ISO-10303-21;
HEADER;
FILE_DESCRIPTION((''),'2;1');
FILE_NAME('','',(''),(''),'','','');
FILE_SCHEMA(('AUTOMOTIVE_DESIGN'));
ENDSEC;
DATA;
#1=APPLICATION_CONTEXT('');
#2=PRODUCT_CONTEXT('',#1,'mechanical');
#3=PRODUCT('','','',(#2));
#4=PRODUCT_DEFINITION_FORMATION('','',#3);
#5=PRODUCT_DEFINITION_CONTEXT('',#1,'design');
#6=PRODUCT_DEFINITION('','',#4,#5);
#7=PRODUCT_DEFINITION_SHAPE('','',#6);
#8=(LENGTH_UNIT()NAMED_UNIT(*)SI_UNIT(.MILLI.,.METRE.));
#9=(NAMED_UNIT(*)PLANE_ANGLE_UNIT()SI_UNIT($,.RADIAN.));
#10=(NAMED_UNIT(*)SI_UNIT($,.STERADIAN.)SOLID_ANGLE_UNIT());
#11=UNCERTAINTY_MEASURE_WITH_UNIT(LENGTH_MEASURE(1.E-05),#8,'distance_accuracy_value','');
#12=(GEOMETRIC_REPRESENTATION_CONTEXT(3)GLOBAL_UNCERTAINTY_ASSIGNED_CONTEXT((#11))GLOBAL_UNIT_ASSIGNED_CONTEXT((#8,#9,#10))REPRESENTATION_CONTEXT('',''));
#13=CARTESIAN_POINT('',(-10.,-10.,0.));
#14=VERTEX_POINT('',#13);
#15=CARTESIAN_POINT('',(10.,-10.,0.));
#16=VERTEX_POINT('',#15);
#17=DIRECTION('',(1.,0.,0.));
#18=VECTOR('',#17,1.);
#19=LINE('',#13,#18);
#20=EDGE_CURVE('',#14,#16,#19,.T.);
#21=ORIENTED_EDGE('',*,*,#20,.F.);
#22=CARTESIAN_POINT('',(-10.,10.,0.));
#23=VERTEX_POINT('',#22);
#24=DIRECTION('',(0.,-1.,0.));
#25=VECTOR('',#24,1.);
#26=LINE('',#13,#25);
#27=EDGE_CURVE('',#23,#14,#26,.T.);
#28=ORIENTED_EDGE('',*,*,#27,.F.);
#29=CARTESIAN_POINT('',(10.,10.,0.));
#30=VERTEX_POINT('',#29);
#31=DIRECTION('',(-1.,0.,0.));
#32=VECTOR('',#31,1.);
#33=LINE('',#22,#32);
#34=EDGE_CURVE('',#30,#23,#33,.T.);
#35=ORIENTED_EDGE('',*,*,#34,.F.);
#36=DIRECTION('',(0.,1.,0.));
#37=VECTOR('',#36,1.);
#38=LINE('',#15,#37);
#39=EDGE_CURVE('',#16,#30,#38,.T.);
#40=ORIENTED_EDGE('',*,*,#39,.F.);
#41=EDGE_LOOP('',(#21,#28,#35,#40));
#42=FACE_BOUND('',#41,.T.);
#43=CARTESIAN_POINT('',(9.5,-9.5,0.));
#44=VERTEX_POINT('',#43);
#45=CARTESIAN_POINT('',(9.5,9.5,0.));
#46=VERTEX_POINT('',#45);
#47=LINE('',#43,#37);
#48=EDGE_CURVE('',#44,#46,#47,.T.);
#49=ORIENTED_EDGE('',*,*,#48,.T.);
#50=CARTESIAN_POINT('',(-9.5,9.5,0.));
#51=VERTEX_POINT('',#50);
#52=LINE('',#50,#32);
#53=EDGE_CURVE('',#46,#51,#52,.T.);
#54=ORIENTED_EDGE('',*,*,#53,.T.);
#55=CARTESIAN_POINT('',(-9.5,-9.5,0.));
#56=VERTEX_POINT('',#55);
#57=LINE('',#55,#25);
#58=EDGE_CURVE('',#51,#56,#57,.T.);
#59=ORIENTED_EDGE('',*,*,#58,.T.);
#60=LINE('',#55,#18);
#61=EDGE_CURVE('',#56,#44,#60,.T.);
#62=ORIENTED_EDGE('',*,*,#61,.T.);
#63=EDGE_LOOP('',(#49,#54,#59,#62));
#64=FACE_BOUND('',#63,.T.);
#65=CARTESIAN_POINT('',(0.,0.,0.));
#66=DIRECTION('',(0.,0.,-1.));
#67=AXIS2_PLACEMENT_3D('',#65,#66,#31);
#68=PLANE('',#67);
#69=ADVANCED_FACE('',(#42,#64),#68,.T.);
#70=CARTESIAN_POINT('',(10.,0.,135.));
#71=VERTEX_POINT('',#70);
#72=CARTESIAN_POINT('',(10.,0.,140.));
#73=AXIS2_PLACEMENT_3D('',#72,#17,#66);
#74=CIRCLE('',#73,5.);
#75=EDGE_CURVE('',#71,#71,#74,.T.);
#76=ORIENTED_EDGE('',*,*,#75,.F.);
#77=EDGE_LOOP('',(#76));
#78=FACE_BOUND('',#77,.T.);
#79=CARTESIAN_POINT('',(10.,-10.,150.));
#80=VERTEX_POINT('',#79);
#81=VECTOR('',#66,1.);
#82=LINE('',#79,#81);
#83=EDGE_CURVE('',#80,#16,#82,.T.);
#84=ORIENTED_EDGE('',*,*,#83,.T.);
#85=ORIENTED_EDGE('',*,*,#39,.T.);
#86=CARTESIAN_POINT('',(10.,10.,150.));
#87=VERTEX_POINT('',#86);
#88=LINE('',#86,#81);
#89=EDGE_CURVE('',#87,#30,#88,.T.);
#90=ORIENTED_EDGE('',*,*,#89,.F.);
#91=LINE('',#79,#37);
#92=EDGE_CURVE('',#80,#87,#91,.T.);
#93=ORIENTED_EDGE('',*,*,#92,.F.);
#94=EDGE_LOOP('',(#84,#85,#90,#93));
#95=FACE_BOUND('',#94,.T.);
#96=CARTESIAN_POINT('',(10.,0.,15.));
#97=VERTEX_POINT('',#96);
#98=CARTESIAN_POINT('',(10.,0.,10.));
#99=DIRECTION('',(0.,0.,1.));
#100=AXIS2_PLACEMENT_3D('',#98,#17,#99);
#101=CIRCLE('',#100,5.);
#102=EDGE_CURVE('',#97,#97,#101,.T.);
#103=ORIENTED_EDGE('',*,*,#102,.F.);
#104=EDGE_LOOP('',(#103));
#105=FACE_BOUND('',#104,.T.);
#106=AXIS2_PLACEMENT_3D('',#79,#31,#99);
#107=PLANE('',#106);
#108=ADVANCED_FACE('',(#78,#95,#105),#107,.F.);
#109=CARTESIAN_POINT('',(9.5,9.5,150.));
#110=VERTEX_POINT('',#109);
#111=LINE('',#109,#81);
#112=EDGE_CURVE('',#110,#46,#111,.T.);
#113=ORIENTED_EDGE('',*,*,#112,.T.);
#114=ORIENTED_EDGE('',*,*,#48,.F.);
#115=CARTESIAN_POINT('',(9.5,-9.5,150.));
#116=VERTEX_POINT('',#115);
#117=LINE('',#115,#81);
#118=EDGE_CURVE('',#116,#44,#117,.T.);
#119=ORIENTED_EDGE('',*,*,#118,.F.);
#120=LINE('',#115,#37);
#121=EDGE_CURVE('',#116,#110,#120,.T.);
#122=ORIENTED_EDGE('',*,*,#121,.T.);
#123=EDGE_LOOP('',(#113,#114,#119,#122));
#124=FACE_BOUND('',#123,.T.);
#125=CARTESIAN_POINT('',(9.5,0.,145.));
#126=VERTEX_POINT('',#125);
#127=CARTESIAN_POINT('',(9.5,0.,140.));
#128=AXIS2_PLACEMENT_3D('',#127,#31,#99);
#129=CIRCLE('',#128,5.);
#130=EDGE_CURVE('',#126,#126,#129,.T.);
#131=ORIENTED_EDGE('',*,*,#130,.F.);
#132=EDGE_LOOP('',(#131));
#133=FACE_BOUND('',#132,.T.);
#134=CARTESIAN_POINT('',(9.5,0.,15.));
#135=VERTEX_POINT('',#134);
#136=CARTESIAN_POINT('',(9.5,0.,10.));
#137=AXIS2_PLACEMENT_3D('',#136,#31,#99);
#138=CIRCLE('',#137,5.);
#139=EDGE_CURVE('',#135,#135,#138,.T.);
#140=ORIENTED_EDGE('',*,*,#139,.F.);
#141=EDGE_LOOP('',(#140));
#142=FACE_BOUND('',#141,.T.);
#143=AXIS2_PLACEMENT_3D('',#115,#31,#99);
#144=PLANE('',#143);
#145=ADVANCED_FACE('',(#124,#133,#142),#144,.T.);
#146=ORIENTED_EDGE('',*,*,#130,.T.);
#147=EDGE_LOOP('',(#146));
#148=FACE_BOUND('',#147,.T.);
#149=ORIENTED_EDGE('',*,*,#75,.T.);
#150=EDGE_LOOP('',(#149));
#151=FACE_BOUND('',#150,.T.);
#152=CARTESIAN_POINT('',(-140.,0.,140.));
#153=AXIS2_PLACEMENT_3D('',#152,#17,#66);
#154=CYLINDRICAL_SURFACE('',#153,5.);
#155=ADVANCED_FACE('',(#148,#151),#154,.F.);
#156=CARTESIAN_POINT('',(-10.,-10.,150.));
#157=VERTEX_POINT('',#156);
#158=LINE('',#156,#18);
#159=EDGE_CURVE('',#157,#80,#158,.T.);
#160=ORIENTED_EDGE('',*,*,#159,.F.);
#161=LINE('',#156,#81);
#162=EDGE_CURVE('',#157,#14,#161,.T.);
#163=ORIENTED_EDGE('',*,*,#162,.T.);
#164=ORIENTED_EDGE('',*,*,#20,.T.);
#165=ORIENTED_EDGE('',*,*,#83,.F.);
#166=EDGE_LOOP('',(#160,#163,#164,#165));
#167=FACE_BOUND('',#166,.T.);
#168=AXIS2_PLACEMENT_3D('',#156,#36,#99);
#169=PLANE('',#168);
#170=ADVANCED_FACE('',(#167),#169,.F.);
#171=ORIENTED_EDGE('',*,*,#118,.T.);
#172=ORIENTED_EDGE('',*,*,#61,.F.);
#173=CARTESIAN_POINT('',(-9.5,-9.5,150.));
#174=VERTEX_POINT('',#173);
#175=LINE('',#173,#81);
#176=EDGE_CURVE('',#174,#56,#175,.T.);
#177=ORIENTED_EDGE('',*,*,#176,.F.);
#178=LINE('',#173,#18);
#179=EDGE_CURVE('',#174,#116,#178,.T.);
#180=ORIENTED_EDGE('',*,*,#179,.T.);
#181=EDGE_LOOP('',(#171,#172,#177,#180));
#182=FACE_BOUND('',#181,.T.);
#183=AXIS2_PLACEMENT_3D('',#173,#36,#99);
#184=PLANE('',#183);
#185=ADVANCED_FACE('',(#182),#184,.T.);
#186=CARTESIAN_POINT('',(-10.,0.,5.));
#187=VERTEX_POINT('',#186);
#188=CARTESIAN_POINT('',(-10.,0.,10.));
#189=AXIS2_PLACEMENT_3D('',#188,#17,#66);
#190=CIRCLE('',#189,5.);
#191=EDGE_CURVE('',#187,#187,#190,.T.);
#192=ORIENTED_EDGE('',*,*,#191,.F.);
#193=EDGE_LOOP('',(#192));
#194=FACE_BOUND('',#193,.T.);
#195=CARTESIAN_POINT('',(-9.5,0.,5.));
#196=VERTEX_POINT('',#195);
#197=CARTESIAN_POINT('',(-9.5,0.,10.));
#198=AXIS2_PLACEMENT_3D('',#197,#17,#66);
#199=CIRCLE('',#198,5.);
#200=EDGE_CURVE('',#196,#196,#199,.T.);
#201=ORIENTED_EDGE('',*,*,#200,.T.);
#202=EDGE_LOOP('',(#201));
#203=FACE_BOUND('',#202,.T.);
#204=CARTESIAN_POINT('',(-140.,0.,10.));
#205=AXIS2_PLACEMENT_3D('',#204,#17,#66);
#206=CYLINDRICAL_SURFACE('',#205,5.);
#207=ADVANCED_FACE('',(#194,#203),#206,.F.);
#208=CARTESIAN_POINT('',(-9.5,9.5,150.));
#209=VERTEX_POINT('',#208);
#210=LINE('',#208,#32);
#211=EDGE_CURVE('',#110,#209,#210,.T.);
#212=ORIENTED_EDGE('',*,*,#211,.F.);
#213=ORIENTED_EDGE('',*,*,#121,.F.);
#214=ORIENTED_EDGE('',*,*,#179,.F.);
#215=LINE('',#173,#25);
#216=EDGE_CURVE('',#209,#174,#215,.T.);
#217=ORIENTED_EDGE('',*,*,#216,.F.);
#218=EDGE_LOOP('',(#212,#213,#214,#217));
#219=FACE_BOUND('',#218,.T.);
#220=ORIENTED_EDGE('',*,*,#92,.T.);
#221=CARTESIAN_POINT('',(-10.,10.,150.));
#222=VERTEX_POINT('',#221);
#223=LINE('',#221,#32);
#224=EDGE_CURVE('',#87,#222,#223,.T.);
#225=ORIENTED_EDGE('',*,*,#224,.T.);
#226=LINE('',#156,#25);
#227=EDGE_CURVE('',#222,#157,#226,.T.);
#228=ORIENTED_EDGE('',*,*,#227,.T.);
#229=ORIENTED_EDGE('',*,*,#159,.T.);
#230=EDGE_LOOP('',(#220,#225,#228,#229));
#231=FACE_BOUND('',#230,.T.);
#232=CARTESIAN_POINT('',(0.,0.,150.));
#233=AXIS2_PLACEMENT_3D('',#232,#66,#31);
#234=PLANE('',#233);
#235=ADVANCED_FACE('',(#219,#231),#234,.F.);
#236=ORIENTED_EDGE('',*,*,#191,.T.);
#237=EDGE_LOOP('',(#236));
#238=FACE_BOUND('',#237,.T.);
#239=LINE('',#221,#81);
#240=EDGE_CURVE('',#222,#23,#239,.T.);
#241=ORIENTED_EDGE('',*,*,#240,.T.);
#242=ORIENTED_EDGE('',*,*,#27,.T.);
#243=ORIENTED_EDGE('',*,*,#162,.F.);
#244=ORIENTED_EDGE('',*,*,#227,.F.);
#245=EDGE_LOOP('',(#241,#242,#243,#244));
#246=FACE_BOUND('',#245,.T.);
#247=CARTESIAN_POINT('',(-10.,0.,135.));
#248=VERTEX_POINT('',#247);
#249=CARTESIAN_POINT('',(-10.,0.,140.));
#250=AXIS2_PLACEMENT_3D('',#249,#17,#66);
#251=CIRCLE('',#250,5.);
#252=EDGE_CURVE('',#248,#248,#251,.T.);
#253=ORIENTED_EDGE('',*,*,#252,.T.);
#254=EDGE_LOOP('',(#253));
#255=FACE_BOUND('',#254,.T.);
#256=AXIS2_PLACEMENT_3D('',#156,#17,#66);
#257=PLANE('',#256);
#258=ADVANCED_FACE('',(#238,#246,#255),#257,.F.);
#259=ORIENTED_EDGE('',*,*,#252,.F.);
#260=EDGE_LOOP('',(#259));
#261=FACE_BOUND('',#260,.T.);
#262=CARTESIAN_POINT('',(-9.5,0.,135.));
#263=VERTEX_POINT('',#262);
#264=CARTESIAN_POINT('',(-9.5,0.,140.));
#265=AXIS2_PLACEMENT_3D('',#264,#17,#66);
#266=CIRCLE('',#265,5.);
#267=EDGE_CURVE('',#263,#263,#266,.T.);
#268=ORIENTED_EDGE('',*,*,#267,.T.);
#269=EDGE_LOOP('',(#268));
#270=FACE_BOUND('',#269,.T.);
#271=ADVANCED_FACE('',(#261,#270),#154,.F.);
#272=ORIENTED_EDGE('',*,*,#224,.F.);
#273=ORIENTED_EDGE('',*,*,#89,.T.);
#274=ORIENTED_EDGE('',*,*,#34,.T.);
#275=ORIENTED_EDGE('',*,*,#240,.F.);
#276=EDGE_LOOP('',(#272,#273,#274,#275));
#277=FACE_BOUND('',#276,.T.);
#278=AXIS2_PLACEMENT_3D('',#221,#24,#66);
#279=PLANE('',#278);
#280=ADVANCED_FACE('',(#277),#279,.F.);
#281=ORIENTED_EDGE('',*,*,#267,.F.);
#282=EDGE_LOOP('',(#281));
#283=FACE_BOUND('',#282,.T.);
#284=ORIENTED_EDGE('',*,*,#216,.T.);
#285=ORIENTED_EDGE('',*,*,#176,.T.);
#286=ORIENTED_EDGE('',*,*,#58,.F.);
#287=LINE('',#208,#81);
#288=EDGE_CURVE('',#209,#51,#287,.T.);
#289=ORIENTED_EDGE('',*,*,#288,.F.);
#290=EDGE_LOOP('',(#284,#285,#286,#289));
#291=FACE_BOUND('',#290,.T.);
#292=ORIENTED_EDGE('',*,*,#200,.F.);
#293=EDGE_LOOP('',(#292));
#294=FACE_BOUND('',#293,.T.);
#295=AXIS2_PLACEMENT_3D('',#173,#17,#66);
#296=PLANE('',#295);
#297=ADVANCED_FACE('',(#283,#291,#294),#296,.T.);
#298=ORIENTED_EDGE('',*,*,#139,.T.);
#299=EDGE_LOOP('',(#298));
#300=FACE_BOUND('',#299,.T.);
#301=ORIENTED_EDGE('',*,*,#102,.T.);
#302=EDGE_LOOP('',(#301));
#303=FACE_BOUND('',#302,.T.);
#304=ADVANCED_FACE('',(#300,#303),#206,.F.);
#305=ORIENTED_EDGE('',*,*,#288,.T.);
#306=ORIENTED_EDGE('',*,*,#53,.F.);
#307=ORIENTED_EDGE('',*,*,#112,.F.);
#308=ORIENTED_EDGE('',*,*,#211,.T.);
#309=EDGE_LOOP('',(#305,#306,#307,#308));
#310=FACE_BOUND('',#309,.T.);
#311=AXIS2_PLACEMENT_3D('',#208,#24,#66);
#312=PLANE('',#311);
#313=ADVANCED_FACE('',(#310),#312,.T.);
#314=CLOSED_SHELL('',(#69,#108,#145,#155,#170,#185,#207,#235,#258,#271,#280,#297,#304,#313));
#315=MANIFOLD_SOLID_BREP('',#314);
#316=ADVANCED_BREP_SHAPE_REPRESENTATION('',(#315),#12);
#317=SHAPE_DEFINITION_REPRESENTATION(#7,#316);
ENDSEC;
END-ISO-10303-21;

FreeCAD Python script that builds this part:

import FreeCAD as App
import Part
import Sketcher

V = App.Vector
Q = App.Units.Quantity

doc = App.newDocument("Part")
body = doc.addObject("PartDesign::Body", "Body")

sketch1 = body.newObject("Sketcher::SketchObject", "Sketch")
sketch1.AttachmentSupport = (doc.getObject("XY_Plane"), [""])
sketch1.MapMode = "FlatFace"
sketch1.addGeometry(Part.LineSegment(V(-10, 10, 0), V(-10, -10, 0)), False)
sketch1.addGeometry(Part.LineSegment(V(-10, -10, 0), V(10, -10, 0)), False)
sketch1.addGeometry(Part.LineSegment(V(10, -10, 0), V(10, 10, 0)), False)
sketch1.addGeometry(Part.LineSegment(V(10, 10, 0), V(-10, 10, 0)), False)
sketch1.addGeometry(Part.LineSegment(V(10, -10, 0), V(-10, -10, 0)), False)
sketch1.addGeometry(Part.LineSegment(V(-10, -10, 0), V(-10, 10, 0)), False)
sketch1.addGeometry(Part.LineSegment(V(-10, 10, 0), V(10, 10, 0)), False)
sketch1.addGeometry(Part.LineSegment(V(10, 10, 0), V(10, -10, 0)), False)
sketch1.addConstraint(Sketcher.Constraint("Coincident", 0, 2, 1, 1))
sketch1.addConstraint(Sketcher.Constraint("Coincident", 1, 2, 2, 1))
sketch1.addConstraint(Sketcher.Constraint("Coincident", 2, 2, 3, 1))
sketch1.addConstraint(Sketcher.Constraint("Coincident", 3, 2, 0, 1))
sketch1.addConstraint(Sketcher.Constraint("Coincident", 4, 2, 5, 1))
sketch1.addConstraint(Sketcher.Constraint("Coincident", 5, 2, 6, 1))
sketch1.addConstraint(Sketcher.Constraint("Coincident", 6, 2, 7, 1))
sketch1.addConstraint(Sketcher.Constraint("Coincident", 7, 2, 4, 1))
sketch1.addConstraint(Sketcher.Constraint("Vertical", 0))
sketch1.addConstraint(Sketcher.Constraint("Horizontal", 1))
sketch1.addConstraint(Sketcher.Constraint("Vertical", 2))
sketch1.addConstraint(Sketcher.Constraint("Horizontal", 3))
sketch1.addConstraint(Sketcher.Constraint("Horizontal", 4))
sketch1.addConstraint(Sketcher.Constraint("Vertical", 5))
sketch1.addConstraint(Sketcher.Constraint("Horizontal", 6))
sketch1.addConstraint(Sketcher.Constraint("Vertical", 7))
sketch1.addConstraint(Sketcher.Constraint("Symmetric", 0, 2, 2, 2, -1, 1))
sketch1.addConstraint(Sketcher.Constraint("Symmetric", 4, 2, 6, 2, -1, 1))
sketch1.addConstraint(Sketcher.Constraint("Equal", 3, 0))
sketch1.addConstraint(Sketcher.Constraint("Equal", 6, 5))
sketch1.addConstraint(Sketcher.Constraint("DistanceX", 1, 1, 1, 2, Q("20 mm")))
sketch1.addConstraint(Sketcher.Constraint("DistanceX", 4, 2, 4, 1, Q("19 mm")))
pad1 = body.newObject("PartDesign::Pad", "Pad")
pad1.Profile = sketch1
pad1.Length = 150

sketch2 = body.newObject("Sketcher::SketchObject", "Sketch001")
sketch2.AttachmentSupport = (doc.getObject("YZ_Plane"), [""])
sketch2.MapMode = "FlatFace"
sketch2.AttachmentOffset = App.Placement(V(0, 0, 10), App.Rotation())
sketch2.addGeometry(Part.Circle(V(0, 140, 0), V(0, 0, 1), 5), False)
sketch2.addGeometry(Part.Circle(V(0, 10, 0), V(0, 0, 1), 5), False)
sketch2.addConstraint(Sketcher.Constraint("Equal", 0, 1))
sketch2.addConstraint(Sketcher.Constraint("PointOnObject", 0, 3, -2))
sketch2.addConstraint(Sketcher.Constraint("PointOnObject", 1, 3, -2))
sketch2.addConstraint(Sketcher.Constraint("Diameter", 0, Q("10 mm")))
sketch2.addConstraint(Sketcher.Constraint("DistanceY", -1, 1, 0, 3, Q("140 mm")))
sketch2.addConstraint(Sketcher.Constraint("DistanceY", -1, 1, 1, 3, Q("10 mm")))
pocket1 = body.newObject("PartDesign::Pocket", "Pocket")
pocket1.Profile = sketch2
pocket1.Length = 150

doc.recompute()
